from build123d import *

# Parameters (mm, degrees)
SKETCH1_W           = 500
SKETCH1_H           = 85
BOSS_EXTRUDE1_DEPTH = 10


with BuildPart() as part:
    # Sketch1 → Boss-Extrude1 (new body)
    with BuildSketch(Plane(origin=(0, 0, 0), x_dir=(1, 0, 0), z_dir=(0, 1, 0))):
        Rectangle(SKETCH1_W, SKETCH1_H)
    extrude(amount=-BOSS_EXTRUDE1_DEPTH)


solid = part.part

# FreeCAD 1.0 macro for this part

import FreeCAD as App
import Part
import Sketcher
from FreeCAD import Vector
Q = App.Units.Quantity

doc = App.newDocument("Part")
body = doc.addObject("PartDesign::Body", "Body")

# Sketch on XZ plane
sketch1 = body.newObject("Sketcher::SketchObject", "Sketch")
sketch1.AttachmentSupport = (doc.getObject("XZ_Plane"), [""])
sketch1.MapMode = "FlatFace"
sketch1.addGeometry([
    Part.LineSegment(Vector(-250, -42, 0), Vector(-250, 42, 0)),
    Part.LineSegment(Vector(-250, 42, 0), Vector(250, 42, 0)),
    Part.LineSegment(Vector(250, 42, 0), Vector(250, -42, 0)),
    Part.LineSegment(Vector(250, -42, 0), Vector(-250, -42, 0)),
], False)
sketch1.addConstraint([
    Sketcher.Constraint("Coincident", 0, 2, 1, 1),
    Sketcher.Constraint("Coincident", 1, 2, 2, 1),
    Sketcher.Constraint("Coincident", 2, 2, 3, 1),
    Sketcher.Constraint("Coincident", 3, 2, 0, 1),
    Sketcher.Constraint("Vertical", 0),
    Sketcher.Constraint("Horizontal", 1),
    Sketcher.Constraint("Vertical", 2),
    Sketcher.Constraint("Horizontal", 3),
    Sketcher.Constraint("Symmetric", 0, 2, 2, 2, -1, 1),
    Sketcher.Constraint("DistanceX", 1, 1, 1, 2, Q("500 mm")),
    Sketcher.Constraint("DistanceY", 0, 1, 0, 2, Q("85 mm")),
])
pad1 = body.newObject("PartDesign::Pad", "Pad")
pad1.Profile = sketch1
pad1.Length = 10

doc.recompute()
